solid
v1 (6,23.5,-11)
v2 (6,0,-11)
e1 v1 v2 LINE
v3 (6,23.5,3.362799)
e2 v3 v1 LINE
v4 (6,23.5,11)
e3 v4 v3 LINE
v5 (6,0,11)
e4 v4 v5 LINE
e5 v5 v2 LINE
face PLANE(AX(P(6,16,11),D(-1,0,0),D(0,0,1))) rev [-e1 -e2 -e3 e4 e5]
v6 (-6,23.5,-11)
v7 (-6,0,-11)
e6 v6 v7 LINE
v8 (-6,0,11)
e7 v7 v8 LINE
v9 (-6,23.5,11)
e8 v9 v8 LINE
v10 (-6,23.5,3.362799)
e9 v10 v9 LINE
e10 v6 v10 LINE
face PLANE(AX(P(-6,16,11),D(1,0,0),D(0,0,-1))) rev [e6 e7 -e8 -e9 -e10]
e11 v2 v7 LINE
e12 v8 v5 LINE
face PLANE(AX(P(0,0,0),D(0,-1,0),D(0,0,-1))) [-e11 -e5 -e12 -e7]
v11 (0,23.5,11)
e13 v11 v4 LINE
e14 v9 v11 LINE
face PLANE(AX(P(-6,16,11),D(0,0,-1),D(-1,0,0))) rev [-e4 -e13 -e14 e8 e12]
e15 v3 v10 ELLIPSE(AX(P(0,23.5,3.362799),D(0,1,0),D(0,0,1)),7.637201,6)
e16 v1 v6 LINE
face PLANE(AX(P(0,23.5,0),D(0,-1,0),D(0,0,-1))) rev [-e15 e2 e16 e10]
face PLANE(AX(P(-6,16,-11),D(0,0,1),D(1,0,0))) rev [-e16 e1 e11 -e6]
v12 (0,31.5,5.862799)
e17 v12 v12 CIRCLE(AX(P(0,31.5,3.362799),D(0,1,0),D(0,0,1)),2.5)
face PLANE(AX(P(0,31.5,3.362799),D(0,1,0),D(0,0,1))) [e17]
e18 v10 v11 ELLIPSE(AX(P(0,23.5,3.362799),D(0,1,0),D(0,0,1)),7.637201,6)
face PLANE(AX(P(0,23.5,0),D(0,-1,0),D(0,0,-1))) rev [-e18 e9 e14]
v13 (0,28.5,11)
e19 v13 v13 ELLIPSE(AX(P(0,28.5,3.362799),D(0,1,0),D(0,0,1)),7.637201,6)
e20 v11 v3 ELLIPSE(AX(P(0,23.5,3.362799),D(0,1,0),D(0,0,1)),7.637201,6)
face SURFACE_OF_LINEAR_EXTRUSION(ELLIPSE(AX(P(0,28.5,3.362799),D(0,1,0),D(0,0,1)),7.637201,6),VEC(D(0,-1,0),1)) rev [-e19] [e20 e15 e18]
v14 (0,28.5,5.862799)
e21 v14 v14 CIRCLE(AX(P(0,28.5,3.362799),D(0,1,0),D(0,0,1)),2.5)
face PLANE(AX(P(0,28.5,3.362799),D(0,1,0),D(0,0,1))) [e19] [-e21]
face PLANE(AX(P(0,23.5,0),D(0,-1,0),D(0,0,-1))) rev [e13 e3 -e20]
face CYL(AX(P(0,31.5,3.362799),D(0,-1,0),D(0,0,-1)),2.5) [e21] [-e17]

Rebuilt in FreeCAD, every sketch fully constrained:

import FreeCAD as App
import Part
import Sketcher
from FreeCAD import Vector
Q = App.Units.Quantity


def add_polygon(sketch, points):
    """Adds a closed chain of lines whose ends are joined by coincident constraints."""
    first, n = sketch.GeometryCount, len(points)
    for a, b in zip(points, points[1:] + points[:1]):
        sketch.addGeometry(Part.LineSegment(App.Vector(*a, 0), App.Vector(*b, 0)), False)
    for i in range(n):
        sketch.addConstraint(Sketcher.Constraint("Coincident", first + i, 2, first + (i + 1) % n, 1))

doc = App.newDocument("Part")
body = doc.addObject("PartDesign::Body", "Body")

# Sketch on XZ plane
sketch1 = body.newObject("Sketcher::SketchObject", "Sketch")
sketch1.AttachmentSupport = (doc.getObject("XZ_Plane"), [""])
sketch1.MapMode = "FlatFace"
add_polygon(sketch1, [(-6, -11), (-6, 11), (6, 11), (6, -11)])  # lines 0-3
sketch1.addConstraint([
    Sketcher.Constraint("Vertical", 0),
    Sketcher.Constraint("Horizontal", 1),
    Sketcher.Constraint("Vertical", 2),
    Sketcher.Constraint("Horizontal", 3),
    Sketcher.Constraint("Symmetric", 0, 2, 2, 2, -1, 1),
    Sketcher.Constraint("DistanceX", 1, 1, 1, 2, Q("12 mm")),
    Sketcher.Constraint("DistanceY", 0, 1, 0, 2, Q("22 mm")),
])
pad1 = body.newObject("PartDesign::Pad", "Pad")
pad1.Profile = sketch1
pad1.Length = 16
pad1.Reversed = True

# Sketch on XZ plane
sketch2 = body.newObject("Sketcher::SketchObject", "Sketch001")
sketch2.AttachmentSupport = (doc.getObject("XZ_Plane"), [""])
sketch2.MapMode = "FlatFace"
sketch2.AttachmentOffset = App.Placement(Vector(0, 0, -16), App.Rotation())
add_polygon(sketch2, [(-6, -16), (-6, 16), (6, 16), (6, -16)])  # lines 0-3
sketch2.addConstraint([
    Sketcher.Constraint("Vertical", 0),
    Sketcher.Constraint("Horizontal", 1),
    Sketcher.Constraint("Vertical", 2),
    Sketcher.Constraint("Horizontal", 3),
    Sketcher.Constraint("Symmetric", 0, 2, 2, 2, -1, 1),
    Sketcher.Constraint("DistanceX", 1, 1, 1, 2, Q("12 mm")),
    Sketcher.Constraint("DistanceY", 0, 1, 0, 2, Q("32 mm")),
])
pad2 = body.newObject("PartDesign::Pad", "Pad001")
pad2.Profile = sketch2
pad2.Length = 2.5
pad2.Reversed = True

# Sketch on XZ plane
sketch3 = body.newObject("Sketcher::SketchObject", "Sketch002")
sketch3.AttachmentSupport = (doc.getObject("XZ_Plane"), [""])
sketch3.MapMode = "FlatFace"
sketch3.AttachmentOffset = App.Placement(Vector(0, 0, -18.5), App.Rotation())
add_polygon(sketch3, [(-6, -11), (-6, 11), (6, 11), (6, -11)])  # lines 0-3
sketch3.addConstraint([
    Sketcher.Constraint("Vertical", 0),
    Sketcher.Constraint("Horizontal", 1),
    Sketcher.Constraint("Vertical", 2),
    Sketcher.Constraint("Horizontal", 3),
    Sketcher.Constraint("Symmetric", 0, 2, 2, 2, -1, 1),
    Sketcher.Constraint("DistanceX", 1, 1, 1, 2, Q("12 mm")),
    Sketcher.Constraint("DistanceY", 0, 1, 0, 2, Q("22 mm")),
])
pad3 = body.newObject("PartDesign::Pad", "Pad002")
pad3.Profile = sketch3
pad3.Length = 5
pad3.Reversed = True

# Sketch on XZ plane
sketch4 = body.newObject("Sketcher::SketchObject", "Sketch003")
sketch4.AttachmentSupport = (doc.getObject("XZ_Plane"), [""])
sketch4.MapMode = "FlatFace"
sketch4.AttachmentOffset = App.Placement(Vector(0, 0, -23.5), App.Rotation())
sketch4.addGeometry(Part.Ellipse(Vector(0, 11, 0), Vector(-6, 3.362799, 0), Vector(0, 3.362799, 0)), False)
sketch4.addConstraint(Sketcher.Constraint("Block", 0))
pad4 = body.newObject("PartDesign::Pad", "Pad003")
pad4.Profile = sketch4
pad4.Length = 5
pad4.Reversed = True

# Sketch on XZ plane
sketch5 = body.newObject("Sketcher::SketchObject", "Sketch004")
sketch5.AttachmentSupport = (doc.getObject("XZ_Plane"), [""])
sketch5.MapMode = "FlatFace"
sketch5.AttachmentOffset = App.Placement(Vector(0, 0, -28.5), App.Rotation())
sketch5.addGeometry(Part.Circle(Vector(0, 3.4, 0), Vector(0, 0, 1), 2.5), False)
sketch5.addConstraint([
    Sketcher.Constraint("PointOnObject", 0, 3, -2),
    Sketcher.Constraint("Diameter", 0, Q("5 mm")),
    Sketcher.Constraint("DistanceY", -1, 1, 0, 3, Q("3.362799 mm")),
])
pad5 = body.newObject("PartDesign::Pad", "Pad004")
pad5.Profile = sketch5
pad5.Length = 3
pad5.Reversed = True

# Sketch on YZ plane
sketch6 = body.newObject("Sketcher::SketchObject", "Sketch005")
sketch6.AttachmentSupport = (doc.getObject("YZ_Plane"), [""])
sketch6.MapMode = "FlatFace"
sketch6.AttachmentOffset = App.Placement(Vector(0, 0, -6), App.Rotation())
add_polygon(sketch6, [(18.5, -16), (16, -16), (16, -11), (18.5, -11)])  # lines 0-3
add_polygon(sketch6, [(18.5, 11), (16, 11), (16, 16), (18.5, 16)])  # lines 4-7
sketch6.addConstraint([
    Sketcher.Constraint("Horizontal", 0),
    Sketcher.Constraint("Vertical", 1),
    Sketcher.Constraint("Horizontal", 2),
    Sketcher.Constraint("Vertical", 3),
    Sketcher.Constraint("Horizontal", 4),
    Sketcher.Constraint("Vertical", 5),
    Sketcher.Constraint("Horizontal", 6),
    Sketcher.Constraint("Vertical", 7),
    Sketcher.Constraint("Symmetric", 1, 2, 4, 2, -1),
    Sketcher.Constraint("Symmetric", 3, 2, 6, 2, -1),
    Sketcher.Constraint("DistanceY", 1, 1, 1, 2, Q("5 mm")),
    Sketcher.Constraint("DistanceX", 0, 2, 0, 1, Q("2.5 mm")),
    Sketcher.Constraint("DistanceX", -1, 1, 0, 2, Q("16 mm")),
    Sketcher.Constraint("DistanceY", 0, 2, -1, 1, Q("16 mm")),
])
pocket1 = body.newObject("PartDesign::Pocket", "Pocket")
pocket1.Profile = sketch6
pocket1.Type = "ThroughAll"
pocket1.Reversed = True

doc.recompute()
